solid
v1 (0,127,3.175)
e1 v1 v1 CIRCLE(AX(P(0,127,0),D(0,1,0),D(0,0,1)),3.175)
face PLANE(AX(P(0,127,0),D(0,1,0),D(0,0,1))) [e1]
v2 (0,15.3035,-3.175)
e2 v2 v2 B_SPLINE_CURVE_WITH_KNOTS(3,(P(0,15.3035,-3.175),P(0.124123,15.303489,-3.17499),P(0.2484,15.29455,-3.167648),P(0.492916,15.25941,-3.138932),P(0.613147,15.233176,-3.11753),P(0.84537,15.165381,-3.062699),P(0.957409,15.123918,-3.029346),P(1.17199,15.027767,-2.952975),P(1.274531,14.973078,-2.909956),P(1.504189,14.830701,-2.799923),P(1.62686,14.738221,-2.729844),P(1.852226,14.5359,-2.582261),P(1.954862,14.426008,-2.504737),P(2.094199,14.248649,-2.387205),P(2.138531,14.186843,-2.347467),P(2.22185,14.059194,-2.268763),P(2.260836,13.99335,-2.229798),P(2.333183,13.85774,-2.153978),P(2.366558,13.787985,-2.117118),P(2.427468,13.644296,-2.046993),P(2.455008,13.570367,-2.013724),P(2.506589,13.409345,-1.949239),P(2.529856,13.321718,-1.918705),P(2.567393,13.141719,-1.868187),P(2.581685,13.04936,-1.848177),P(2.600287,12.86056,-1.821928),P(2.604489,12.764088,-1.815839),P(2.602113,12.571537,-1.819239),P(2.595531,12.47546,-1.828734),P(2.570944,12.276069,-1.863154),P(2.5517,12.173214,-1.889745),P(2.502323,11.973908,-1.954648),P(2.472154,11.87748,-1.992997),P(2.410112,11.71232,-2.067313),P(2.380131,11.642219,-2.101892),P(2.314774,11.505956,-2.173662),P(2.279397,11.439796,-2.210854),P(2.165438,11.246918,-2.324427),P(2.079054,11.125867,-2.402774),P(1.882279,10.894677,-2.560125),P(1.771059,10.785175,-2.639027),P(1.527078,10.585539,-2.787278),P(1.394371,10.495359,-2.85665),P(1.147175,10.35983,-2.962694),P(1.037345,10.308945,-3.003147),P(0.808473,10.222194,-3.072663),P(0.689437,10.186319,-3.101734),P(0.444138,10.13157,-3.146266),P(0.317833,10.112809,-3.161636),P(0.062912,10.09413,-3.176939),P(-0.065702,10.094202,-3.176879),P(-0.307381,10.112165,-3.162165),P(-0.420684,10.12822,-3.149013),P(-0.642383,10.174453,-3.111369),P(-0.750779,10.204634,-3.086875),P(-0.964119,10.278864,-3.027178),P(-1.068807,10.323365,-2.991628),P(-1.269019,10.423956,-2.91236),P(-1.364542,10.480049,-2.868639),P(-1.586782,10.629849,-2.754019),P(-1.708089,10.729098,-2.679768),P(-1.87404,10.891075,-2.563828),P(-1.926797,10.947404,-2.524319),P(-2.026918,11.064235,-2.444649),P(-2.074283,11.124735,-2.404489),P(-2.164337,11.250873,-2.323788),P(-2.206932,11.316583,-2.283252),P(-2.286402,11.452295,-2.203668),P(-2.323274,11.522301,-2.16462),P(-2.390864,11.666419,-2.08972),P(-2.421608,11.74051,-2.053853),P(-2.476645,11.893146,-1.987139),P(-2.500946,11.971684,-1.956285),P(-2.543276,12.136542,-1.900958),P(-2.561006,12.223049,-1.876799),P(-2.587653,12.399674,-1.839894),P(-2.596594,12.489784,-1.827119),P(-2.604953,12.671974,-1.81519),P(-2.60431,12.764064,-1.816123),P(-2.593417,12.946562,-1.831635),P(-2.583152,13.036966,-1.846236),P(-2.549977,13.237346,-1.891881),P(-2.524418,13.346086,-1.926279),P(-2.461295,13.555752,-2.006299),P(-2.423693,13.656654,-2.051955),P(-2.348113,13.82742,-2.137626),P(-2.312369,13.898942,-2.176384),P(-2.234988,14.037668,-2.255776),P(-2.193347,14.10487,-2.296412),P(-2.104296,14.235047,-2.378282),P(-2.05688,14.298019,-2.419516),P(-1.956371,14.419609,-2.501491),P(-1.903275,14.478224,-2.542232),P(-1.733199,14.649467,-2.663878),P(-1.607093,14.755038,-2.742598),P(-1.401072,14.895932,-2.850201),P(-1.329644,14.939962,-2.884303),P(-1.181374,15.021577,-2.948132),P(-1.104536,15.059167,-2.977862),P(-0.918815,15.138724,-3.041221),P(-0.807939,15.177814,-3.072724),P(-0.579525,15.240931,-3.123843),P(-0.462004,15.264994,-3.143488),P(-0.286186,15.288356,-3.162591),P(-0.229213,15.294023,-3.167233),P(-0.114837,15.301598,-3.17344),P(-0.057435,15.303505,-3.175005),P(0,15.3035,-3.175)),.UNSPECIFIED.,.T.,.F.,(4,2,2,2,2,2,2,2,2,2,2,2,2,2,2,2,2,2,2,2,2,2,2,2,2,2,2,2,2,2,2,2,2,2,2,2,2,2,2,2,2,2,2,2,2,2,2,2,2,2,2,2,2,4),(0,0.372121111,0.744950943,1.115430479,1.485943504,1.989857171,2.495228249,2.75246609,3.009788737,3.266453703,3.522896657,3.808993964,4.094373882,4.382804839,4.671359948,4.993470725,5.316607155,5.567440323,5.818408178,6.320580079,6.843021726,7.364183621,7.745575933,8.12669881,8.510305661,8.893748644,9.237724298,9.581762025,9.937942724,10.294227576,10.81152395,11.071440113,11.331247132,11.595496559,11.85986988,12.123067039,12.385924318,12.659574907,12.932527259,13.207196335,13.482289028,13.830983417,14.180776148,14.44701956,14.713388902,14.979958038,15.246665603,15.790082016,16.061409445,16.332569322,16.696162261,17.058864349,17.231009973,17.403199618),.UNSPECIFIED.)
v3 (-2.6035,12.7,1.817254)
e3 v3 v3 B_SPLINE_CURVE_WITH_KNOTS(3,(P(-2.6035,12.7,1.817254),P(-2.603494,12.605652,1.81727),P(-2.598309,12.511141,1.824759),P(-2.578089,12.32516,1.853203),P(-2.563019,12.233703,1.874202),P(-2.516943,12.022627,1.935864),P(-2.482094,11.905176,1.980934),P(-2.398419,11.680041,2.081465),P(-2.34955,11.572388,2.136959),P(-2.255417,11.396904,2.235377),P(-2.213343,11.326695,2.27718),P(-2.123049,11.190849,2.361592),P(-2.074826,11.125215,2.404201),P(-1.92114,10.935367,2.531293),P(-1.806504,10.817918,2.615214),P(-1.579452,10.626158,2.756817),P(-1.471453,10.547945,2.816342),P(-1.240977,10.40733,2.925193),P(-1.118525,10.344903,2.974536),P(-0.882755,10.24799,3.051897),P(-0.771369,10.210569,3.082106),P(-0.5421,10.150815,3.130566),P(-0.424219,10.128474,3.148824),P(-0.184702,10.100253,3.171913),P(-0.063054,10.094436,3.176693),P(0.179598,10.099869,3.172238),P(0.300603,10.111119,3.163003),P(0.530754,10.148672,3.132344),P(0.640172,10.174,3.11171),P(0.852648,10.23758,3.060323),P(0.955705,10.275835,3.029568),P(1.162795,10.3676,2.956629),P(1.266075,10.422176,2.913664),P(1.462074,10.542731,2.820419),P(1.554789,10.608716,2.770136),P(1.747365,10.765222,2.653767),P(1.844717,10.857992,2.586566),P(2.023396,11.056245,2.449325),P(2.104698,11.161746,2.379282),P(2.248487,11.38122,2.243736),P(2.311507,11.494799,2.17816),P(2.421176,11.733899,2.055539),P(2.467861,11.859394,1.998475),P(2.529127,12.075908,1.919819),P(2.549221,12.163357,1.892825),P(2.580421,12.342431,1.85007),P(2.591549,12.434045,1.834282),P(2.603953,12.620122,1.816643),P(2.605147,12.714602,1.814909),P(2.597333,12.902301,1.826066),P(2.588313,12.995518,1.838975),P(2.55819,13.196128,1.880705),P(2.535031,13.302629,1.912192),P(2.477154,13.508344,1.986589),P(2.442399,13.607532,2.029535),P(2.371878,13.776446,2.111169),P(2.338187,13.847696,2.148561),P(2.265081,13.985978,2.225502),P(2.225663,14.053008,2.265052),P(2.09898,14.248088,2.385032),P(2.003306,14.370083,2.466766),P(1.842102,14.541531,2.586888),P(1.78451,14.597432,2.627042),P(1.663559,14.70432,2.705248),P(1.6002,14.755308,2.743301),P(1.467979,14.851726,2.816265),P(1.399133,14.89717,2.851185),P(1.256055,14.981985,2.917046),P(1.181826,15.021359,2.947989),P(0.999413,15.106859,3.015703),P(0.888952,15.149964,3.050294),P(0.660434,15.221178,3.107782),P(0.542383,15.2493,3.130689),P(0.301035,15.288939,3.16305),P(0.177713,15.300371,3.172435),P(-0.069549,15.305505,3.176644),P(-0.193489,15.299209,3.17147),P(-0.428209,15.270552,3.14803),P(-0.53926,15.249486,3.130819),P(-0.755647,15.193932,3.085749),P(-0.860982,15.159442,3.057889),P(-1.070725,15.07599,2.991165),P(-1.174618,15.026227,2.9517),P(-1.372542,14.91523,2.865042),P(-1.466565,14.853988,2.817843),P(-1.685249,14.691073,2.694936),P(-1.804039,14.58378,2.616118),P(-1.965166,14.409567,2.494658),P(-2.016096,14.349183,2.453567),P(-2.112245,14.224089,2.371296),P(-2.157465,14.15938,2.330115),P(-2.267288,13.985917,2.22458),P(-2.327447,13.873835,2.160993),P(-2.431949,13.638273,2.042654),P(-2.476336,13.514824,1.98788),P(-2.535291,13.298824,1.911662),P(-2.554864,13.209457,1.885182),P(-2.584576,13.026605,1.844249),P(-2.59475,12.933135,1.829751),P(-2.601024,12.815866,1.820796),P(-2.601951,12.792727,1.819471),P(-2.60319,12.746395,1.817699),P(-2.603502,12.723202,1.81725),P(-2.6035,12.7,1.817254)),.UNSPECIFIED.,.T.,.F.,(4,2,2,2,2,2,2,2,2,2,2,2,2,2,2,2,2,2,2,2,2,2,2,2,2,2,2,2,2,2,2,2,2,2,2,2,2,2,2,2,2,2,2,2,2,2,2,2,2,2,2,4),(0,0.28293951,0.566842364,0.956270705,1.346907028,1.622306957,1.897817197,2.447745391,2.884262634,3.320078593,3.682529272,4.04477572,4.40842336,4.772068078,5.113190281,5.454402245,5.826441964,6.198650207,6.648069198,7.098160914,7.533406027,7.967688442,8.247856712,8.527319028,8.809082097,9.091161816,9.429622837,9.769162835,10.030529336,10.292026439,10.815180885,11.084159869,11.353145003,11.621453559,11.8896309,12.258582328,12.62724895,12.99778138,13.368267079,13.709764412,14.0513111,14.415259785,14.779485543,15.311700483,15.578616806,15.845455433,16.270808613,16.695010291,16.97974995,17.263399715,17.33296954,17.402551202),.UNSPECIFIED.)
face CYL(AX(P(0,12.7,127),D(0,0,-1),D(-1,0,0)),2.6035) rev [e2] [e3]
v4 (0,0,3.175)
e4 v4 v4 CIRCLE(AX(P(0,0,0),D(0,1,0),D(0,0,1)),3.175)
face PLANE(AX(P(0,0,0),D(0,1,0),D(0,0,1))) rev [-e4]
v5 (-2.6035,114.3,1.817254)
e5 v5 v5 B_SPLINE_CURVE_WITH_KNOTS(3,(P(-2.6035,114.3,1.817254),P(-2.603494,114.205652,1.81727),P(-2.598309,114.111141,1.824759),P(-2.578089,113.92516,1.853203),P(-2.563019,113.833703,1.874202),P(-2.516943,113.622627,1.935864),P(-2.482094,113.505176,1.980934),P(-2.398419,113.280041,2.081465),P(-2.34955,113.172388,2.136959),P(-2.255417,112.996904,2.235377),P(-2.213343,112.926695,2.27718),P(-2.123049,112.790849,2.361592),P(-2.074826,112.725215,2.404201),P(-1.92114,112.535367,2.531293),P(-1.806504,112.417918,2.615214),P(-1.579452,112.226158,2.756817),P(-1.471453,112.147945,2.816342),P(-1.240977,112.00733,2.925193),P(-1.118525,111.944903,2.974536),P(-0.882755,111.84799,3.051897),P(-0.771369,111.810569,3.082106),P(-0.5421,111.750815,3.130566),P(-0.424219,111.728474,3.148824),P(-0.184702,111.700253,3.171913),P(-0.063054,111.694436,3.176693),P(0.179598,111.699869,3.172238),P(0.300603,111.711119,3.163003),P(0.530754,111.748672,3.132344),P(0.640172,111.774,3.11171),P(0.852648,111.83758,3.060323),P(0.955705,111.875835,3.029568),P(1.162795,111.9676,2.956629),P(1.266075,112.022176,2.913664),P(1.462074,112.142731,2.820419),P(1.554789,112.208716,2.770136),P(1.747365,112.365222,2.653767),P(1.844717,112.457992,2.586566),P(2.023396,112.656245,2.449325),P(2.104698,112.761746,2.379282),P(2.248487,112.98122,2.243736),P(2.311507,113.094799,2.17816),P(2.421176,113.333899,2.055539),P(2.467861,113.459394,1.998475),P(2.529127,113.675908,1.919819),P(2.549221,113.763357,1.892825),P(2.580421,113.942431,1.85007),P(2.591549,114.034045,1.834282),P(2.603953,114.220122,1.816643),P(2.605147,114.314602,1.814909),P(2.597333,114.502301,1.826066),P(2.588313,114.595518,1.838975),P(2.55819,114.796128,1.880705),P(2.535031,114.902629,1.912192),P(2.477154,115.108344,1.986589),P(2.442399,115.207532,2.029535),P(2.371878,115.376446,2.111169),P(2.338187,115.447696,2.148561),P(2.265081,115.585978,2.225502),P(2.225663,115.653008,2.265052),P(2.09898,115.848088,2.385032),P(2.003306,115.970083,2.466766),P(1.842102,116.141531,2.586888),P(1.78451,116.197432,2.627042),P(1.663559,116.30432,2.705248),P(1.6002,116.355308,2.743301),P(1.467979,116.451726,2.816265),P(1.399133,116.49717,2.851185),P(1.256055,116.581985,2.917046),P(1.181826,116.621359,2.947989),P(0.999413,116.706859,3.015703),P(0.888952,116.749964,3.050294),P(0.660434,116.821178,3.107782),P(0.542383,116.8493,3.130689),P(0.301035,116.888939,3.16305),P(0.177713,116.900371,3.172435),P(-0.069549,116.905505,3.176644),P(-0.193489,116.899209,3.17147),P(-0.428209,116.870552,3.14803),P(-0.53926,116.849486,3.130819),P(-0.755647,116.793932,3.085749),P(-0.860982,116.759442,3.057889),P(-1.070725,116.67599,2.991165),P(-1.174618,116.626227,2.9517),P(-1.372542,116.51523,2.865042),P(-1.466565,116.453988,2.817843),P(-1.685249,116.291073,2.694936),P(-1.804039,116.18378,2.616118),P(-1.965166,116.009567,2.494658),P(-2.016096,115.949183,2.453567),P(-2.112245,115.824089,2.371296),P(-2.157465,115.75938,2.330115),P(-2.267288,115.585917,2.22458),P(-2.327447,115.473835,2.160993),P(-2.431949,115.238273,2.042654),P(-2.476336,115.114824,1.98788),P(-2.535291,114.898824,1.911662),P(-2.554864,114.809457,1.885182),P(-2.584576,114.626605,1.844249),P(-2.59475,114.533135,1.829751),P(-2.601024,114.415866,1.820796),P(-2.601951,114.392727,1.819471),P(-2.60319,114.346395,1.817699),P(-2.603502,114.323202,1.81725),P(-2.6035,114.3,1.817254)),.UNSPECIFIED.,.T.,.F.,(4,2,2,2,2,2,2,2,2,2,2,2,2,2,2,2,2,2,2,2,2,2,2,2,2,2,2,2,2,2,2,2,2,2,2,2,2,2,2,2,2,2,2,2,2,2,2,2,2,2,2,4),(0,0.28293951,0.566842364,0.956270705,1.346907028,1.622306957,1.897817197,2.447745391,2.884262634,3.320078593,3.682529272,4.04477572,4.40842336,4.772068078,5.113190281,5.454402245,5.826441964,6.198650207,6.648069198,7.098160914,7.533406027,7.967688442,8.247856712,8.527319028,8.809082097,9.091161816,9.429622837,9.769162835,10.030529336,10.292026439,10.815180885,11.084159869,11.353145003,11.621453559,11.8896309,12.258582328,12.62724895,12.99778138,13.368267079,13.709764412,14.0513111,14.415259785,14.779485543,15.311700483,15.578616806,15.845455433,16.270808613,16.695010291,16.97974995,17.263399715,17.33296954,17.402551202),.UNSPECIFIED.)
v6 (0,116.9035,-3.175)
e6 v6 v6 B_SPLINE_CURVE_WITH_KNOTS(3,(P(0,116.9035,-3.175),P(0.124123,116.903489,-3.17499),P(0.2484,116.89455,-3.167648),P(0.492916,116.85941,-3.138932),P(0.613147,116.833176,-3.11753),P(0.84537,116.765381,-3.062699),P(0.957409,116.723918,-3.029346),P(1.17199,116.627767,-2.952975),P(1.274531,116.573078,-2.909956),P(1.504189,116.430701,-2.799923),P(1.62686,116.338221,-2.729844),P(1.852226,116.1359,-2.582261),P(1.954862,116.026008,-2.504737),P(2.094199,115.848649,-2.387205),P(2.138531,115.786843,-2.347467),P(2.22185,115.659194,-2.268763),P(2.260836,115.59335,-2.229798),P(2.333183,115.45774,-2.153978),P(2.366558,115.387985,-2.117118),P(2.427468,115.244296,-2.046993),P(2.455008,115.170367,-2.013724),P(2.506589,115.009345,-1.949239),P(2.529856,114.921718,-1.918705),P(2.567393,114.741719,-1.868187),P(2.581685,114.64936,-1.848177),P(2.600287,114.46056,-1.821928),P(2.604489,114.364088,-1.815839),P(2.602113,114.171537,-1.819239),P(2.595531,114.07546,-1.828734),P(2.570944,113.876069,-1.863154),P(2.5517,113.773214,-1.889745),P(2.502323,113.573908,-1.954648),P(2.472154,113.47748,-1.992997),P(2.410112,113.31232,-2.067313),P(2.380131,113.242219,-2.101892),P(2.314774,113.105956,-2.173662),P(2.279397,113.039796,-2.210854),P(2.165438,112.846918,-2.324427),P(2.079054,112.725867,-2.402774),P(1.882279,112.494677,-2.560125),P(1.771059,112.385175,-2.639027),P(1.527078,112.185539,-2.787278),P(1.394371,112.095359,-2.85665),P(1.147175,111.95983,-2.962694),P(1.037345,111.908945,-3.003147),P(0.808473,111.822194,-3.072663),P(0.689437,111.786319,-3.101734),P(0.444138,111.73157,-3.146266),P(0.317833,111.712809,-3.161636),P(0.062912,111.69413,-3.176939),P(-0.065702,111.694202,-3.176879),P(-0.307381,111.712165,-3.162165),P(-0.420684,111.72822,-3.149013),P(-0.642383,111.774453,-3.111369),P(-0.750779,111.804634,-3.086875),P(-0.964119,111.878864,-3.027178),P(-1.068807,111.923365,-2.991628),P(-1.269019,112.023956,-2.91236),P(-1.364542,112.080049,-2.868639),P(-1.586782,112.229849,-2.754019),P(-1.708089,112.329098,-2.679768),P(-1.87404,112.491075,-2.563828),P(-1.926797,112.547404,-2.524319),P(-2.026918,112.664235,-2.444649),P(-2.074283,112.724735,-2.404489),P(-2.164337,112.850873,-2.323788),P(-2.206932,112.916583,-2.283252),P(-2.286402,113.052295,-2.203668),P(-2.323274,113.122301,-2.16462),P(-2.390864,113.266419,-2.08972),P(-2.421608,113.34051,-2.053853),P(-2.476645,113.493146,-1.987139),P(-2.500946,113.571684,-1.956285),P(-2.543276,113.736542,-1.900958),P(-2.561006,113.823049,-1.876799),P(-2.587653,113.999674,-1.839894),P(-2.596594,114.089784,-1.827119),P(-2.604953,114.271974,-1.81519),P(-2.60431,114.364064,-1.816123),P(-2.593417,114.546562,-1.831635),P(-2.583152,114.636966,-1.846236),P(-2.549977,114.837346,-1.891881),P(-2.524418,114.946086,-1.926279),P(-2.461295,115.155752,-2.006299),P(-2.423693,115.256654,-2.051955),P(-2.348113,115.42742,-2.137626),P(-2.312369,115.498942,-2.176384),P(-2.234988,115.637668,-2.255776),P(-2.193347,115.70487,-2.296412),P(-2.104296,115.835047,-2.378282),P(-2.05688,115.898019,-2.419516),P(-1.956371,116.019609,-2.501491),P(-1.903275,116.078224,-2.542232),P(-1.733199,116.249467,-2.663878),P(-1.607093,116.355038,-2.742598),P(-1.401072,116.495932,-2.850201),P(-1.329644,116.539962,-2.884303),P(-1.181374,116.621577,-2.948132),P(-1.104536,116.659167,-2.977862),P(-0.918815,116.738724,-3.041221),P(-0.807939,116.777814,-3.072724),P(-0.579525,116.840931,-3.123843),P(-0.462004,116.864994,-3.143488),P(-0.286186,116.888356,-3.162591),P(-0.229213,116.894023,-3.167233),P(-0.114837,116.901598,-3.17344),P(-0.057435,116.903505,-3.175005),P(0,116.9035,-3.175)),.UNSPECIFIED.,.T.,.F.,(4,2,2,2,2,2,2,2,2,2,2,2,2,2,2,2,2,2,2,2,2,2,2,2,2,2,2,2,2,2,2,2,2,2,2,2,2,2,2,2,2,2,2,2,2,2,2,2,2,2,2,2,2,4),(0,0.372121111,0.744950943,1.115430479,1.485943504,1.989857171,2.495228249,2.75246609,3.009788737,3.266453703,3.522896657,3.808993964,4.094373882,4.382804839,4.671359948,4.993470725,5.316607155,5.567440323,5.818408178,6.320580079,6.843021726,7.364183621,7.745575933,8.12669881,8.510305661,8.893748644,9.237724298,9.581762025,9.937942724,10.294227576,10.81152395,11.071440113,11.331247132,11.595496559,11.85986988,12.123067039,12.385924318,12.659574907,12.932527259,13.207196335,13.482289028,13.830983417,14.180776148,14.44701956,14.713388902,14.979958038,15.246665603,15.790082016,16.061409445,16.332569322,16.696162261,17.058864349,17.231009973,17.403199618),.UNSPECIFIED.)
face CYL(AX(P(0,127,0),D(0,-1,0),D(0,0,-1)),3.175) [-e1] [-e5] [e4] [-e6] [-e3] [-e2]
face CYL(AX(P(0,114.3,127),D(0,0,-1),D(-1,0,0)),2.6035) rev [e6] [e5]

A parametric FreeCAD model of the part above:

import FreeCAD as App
import Part
import Sketcher
from FreeCAD import Vector
Q = App.Units.Quantity

doc = App.newDocument("Part")
body = doc.addObject("PartDesign::Body", "Body")

# Sketch on XZ plane
sketch1 = body.newObject("Sketcher::SketchObject", "Sketch")
sketch1.AttachmentSupport = (doc.getObject("XZ_Plane"), [""])
sketch1.MapMode = "FlatFace"
sketch1.addGeometry(Part.Circle(Vector(0, 0, 0), Vector(0, 0, 1), 3.2), False)
sketch1.addConstraint([
    Sketcher.Constraint("Coincident", 0, 3, -1, 1),
    Sketcher.Constraint("Diameter", 0, Q("0.25 in")),
])
pad1 = body.newObject("PartDesign::Pad", "Pad")
pad1.Profile = sketch1
pad1.Length = Q("5 in")
pad1.Reversed = True

# Sketch on XY plane
sketch2 = body.newObject("Sketcher::SketchObject", "Sketch001")
sketch2.AttachmentSupport = (doc.getObject("XY_Plane"), [""])
sketch2.MapMode = "FlatFace"
sketch2.addGeometry([
    Part.Circle(Vector(0, 114.3, 0), Vector(0, 0, 1), 2.6),
    Part.Circle(Vector(0, 12.7, 0), Vector(0, 0, 1), 2.6),
], False)
sketch2.addConstraint([
    Sketcher.Constraint("Equal", 0, 1),
    Sketcher.Constraint("PointOnObject", 0, 3, -2),
    Sketcher.Constraint("PointOnObject", 1, 3, -2),
    Sketcher.Constraint("Diameter", 0, Q("0.205 in")),
    Sketcher.Constraint("DistanceY", 1, 3, 0, 3, Q("4 in")),
    Sketcher.Constraint("DistanceY", -1, 1, 0, 3, Q("4.5 in")),
])
pocket1 = body.newObject("PartDesign::Pocket", "Pocket")
pocket1.Profile = sketch2
pocket1.Type = "ThroughAll"
pocket1.Midplane = True

doc.recompute()
